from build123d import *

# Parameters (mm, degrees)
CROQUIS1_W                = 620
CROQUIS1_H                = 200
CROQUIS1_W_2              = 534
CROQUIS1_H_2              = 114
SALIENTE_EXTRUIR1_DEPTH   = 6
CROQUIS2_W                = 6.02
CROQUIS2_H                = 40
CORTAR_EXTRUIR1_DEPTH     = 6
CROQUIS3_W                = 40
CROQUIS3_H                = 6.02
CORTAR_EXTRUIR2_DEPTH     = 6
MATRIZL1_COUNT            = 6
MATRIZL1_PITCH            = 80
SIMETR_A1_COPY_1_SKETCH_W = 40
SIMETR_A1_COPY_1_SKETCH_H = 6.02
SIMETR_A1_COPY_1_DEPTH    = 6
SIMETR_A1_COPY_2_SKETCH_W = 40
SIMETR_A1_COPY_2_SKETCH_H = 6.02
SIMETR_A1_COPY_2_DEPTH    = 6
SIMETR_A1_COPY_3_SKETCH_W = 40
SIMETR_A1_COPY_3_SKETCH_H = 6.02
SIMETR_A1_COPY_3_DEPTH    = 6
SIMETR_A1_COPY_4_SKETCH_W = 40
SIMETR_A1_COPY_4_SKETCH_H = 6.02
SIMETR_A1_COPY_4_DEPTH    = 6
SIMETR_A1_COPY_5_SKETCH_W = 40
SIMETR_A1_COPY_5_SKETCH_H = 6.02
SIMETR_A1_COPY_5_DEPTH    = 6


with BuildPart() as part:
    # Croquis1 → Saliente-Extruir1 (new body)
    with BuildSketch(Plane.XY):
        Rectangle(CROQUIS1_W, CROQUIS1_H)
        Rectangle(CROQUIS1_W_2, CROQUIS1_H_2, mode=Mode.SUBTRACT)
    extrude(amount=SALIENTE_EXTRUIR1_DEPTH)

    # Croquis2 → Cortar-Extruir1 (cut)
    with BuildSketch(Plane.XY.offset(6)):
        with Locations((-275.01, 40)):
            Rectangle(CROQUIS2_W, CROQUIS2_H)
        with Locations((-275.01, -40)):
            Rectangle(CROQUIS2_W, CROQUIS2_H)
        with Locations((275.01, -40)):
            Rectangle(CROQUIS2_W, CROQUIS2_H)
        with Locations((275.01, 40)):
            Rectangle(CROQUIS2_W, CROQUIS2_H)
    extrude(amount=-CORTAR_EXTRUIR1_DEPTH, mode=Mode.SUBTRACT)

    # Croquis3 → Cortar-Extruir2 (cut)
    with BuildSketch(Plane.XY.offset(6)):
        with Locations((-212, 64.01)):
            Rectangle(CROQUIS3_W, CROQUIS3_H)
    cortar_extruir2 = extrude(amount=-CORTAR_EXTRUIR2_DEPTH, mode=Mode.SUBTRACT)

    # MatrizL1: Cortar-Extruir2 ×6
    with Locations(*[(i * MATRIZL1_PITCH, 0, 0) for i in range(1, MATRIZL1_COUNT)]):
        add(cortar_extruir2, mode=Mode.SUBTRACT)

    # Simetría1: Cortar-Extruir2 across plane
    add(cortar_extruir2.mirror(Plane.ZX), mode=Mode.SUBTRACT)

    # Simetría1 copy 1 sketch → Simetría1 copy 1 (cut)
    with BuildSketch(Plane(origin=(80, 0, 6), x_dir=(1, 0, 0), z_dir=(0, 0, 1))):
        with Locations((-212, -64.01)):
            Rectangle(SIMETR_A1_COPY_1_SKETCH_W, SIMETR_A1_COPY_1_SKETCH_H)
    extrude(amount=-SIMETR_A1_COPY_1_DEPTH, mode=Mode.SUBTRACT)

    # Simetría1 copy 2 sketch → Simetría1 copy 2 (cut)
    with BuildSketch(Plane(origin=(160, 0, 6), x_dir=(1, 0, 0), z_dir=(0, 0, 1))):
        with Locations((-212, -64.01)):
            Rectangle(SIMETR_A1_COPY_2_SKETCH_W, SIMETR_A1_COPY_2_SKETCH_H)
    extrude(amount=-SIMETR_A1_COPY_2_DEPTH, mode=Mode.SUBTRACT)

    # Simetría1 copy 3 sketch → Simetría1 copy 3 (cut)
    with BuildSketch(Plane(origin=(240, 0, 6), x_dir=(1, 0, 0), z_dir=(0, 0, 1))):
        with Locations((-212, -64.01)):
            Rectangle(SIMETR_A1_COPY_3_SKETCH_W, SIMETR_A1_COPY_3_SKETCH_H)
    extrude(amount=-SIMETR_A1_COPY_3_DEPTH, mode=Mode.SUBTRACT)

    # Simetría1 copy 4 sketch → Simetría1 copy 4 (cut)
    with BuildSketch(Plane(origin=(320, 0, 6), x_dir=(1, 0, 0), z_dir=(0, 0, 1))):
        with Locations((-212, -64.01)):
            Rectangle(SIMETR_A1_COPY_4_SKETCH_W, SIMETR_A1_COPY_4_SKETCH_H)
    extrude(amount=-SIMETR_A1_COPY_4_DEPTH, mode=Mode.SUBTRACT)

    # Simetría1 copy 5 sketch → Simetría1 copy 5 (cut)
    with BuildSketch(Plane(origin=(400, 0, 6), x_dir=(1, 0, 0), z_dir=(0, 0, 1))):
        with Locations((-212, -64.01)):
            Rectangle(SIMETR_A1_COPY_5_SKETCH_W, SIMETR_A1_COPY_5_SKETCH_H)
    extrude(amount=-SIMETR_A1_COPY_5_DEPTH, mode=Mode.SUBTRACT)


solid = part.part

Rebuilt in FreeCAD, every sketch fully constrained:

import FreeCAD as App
import Part
import Sketcher
Q = App.Units.Quantity

doc = App.newDocument("Part")
params = doc.addObject("Spreadsheet::Sheet", "Params")
for row, (alias, value) in enumerate([
    ("sketch1_width", "620 mm"),
    ("sketch1_width2", "534 mm"),
    ("sketch1_height", "200 mm"),
    ("sketch1_height2", "114 mm"),
    ("pad1_length", "6 mm"),
    ("sketch2_height", "40 mm"),
    ("sketch2_width", "6.02 mm"),
    ("pocket1_length", "6 mm"),
    ("sketch3_width", "40 mm"),
    ("sketch3_height", "6.02 mm"),
    ("pocket2_length", "6 mm"),
    ("linearpattern_pitch", "80 mm"),
    ("sketch4_width", "40 mm"),
    ("sketch4_height", "6.02 mm"),
    ("pocket3_length", "6 mm"),
    ("sketch5_width", "40 mm"),
    ("sketch5_height", "6.02 mm"),
    ("pocket4_length", "6 mm"),
    ("sketch6_width", "40 mm"),
    ("sketch6_height", "6.02 mm"),
    ("pocket5_length", "6 mm"),
    ("sketch7_width", "40 mm"),
    ("sketch7_height", "6.02 mm"),
    ("pocket6_length", "6 mm"),
    ("sketch8_width", "40 mm"),
    ("sketch8_height", "6.02 mm"),
    ("pocket7_length", "6 mm"),
], start=1):
    params.set(f"A{row}", alias)
    params.set(f"B{row}", "=" + value)
    params.setAlias(f"B{row}", alias)

body = doc.addObject("PartDesign::Body", "Body")

# Sketch on XY plane
sketch1 = body.newObject("Sketcher::SketchObject", "Sketch")
sketch1.AttachmentSupport = (doc.getObject("XY_Plane"), [""])
sketch1.MapMode = "FlatFace"
sketch1.addGeometry([
    Part.LineSegment(App.Vector(-310, 100, 0), App.Vector(-310, -100, 0)),  # 0
    Part.LineSegment(App.Vector(-310, -100, 0), App.Vector(310, -100, 0)),  # 1
    Part.LineSegment(App.Vector(310, -100, 0), App.Vector(310, 100, 0)),  # 2
    Part.LineSegment(App.Vector(310, 100, 0), App.Vector(-310, 100, 0)),  # 3
    Part.LineSegment(App.Vector(267, -57, 0), App.Vector(-267, -57, 0)),  # 4
    Part.LineSegment(App.Vector(-267, -57, 0), App.Vector(-267, 57, 0)),  # 5
    Part.LineSegment(App.Vector(-267, 57, 0), App.Vector(267, 57, 0)),  # 6
    Part.LineSegment(App.Vector(267, 57, 0), App.Vector(267, -57, 0)),  # 7
], False)
sketch1.addConstraint([
    Sketcher.Constraint("Coincident", 0, 2, 1, 1),
    Sketcher.Constraint("Coincident", 1, 2, 2, 1),
    Sketcher.Constraint("Coincident", 2, 2, 3, 1),
    Sketcher.Constraint("Coincident", 3, 2, 0, 1),
    Sketcher.Constraint("Coincident", 4, 2, 5, 1),
    Sketcher.Constraint("Coincident", 5, 2, 6, 1),
    Sketcher.Constraint("Coincident", 6, 2, 7, 1),
    Sketcher.Constraint("Coincident", 7, 2, 4, 1),
    Sketcher.Constraint("Vertical", 0),
    Sketcher.Constraint("Horizontal", 1),
    Sketcher.Constraint("Vertical", 2),
    Sketcher.Constraint("Horizontal", 3),
    Sketcher.Constraint("Horizontal", 4),
    Sketcher.Constraint("Vertical", 5),
    Sketcher.Constraint("Horizontal", 6),
    Sketcher.Constraint("Vertical", 7),
    Sketcher.Constraint("Symmetric", 0, 2, 2, 2, -1, 1),
    Sketcher.Constraint("Symmetric", 4, 2, 6, 2, -1, 1),
    Sketcher.Constraint("DistanceX", 1, 1, 1, 2, Q("620 mm")),
    Sketcher.Constraint("DistanceX", 4, 2, 4, 1, Q("534 mm")),
    Sketcher.Constraint("DistanceY", 0, 2, 0, 1, Q("200 mm")),
    Sketcher.Constraint("DistanceY", 5, 1, 5, 2, Q("114 mm")),
])
sketch1.setExpression("Constraints[18]", "Params.sketch1_width")
sketch1.setExpression("Constraints[19]", "Params.sketch1_width2")
sketch1.setExpression("Constraints[20]", "Params.sketch1_height")
sketch1.setExpression("Constraints[21]", "Params.sketch1_height2")
pad1 = body.newObject("PartDesign::Pad", "Pad")
pad1.Profile = sketch1
pad1.setExpression("Length", "Params.pad1_length")

# Sketch on XY plane
sketch2 = body.newObject("Sketcher::SketchObject", "Sketch001")
sketch2.AttachmentSupport = (doc.getObject("XY_Plane"), [""])
sketch2.MapMode = "FlatFace"
sketch2.AttachmentOffset = App.Placement(App.Vector(0, 0, 6), App.Rotation())
sketch2.addGeometry([
    Part.LineSegment(App.Vector(-278, 60, 0), App.Vector(-278, 20, 0)),  # 0
    Part.LineSegment(App.Vector(-278, 20, 0), App.Vector(-272, 20, 0)),  # 1
    Part.LineSegment(App.Vector(-272, 20, 0), App.Vector(-272, 60, 0)),  # 2
    Part.LineSegment(App.Vector(-272, 60, 0), App.Vector(-278, 60, 0)),  # 3
    Part.LineSegment(App.Vector(-278, -20, 0), App.Vector(-278, -60, 0)),  # 4
    Part.LineSegment(App.Vector(-278, -60, 0), App.Vector(-272, -60, 0)),  # 5
    Part.LineSegment(App.Vector(-272, -60, 0), App.Vector(-272, -20, 0)),  # 6
    Part.LineSegment(App.Vector(-272, -20, 0), App.Vector(-278, -20, 0)),  # 7
    Part.LineSegment(App.Vector(272, -20, 0), App.Vector(272, -60, 0)),  # 8
    Part.LineSegment(App.Vector(272, -60, 0), App.Vector(278, -60, 0)),  # 9
    Part.LineSegment(App.Vector(278, -60, 0), App.Vector(278, -20, 0)),  # 10
    Part.LineSegment(App.Vector(278, -20, 0), App.Vector(272, -20, 0)),  # 11
    Part.LineSegment(App.Vector(272, 60, 0), App.Vector(272, 20, 0)),  # 12
    Part.LineSegment(App.Vector(272, 20, 0), App.Vector(278, 20, 0)),  # 13
    Part.LineSegment(App.Vector(278, 20, 0), App.Vector(278, 60, 0)),  # 14
    Part.LineSegment(App.Vector(278, 60, 0), App.Vector(272, 60, 0)),  # 15
], False)
sketch2.addConstraint([
    Sketcher.Constraint("Coincident", 0, 2, 1, 1),
    Sketcher.Constraint("Coincident", 1, 2, 2, 1),
    Sketcher.Constraint("Coincident", 2, 2, 3, 1),
    Sketcher.Constraint("Coincident", 3, 2, 0, 1),
    Sketcher.Constraint("Coincident", 4, 2, 5, 1),
    Sketcher.Constraint("Coincident", 5, 2, 6, 1),
    Sketcher.Constraint("Coincident", 6, 2, 7, 1),
    Sketcher.Constraint("Coincident", 7, 2, 4, 1),
    Sketcher.Constraint("Coincident", 8, 2, 9, 1),
    Sketcher.Constraint("Coincident", 9, 2, 10, 1),
    Sketcher.Constraint("Coincident", 10, 2, 11, 1),
    Sketcher.Constraint("Coincident", 11, 2, 8, 1),
    Sketcher.Constraint("Coincident", 12, 2, 13, 1),
    Sketcher.Constraint("Coincident", 13, 2, 14, 1),
    Sketcher.Constraint("Coincident", 14, 2, 15, 1),
    Sketcher.Constraint("Coincident", 15, 2, 12, 1),
    Sketcher.Constraint("Vertical", 0),
    Sketcher.Constraint("Horizontal", 1),
    Sketcher.Constraint("Vertical", 2),
    Sketcher.Constraint("Horizontal", 3),
    Sketcher.Constraint("Vertical", 4),
    Sketcher.Constraint("Horizontal", 5),
    Sketcher.Constraint("Vertical", 6),
    Sketcher.Constraint("Horizontal", 7),
    Sketcher.Constraint("Vertical", 8),
    Sketcher.Constraint("Horizontal", 9),
    Sketcher.Constraint("Vertical", 10),
    Sketcher.Constraint("Horizontal", 11),
    Sketcher.Constraint("Vertical", 12),
    Sketcher.Constraint("Horizontal", 13),
    Sketcher.Constraint("Vertical", 14),
    Sketcher.Constraint("Horizontal", 15),
    Sketcher.Constraint("Symmetric", 2, 2, 8, 2, -1, 1),
    Sketcher.Constraint("Symmetric", 0, 2, 10, 2, -1, 1),
    Sketcher.Constraint("Symmetric", 6, 2, 12, 2, -1, 1),
    Sketcher.Constraint("Symmetric", 4, 2, 14, 2, -1, 1),
    Sketcher.Constraint("Symmetric", 5, 2, 8, 2, -2),
    Sketcher.Constraint("Symmetric", 7, 2, 10, 2, -2),
    Sketcher.Constraint("DistanceY", 0, 2, 0, 1, Q("40 mm")),
    Sketcher.Constraint("DistanceY", -1, 1, 0, 2, Q("20 mm")),
    Sketcher.Constraint("DistanceX", 1, 2, -1, 1, Q("272 mm")),
    Sketcher.Constraint("DistanceX", 1, 1, 1, 2, Q("6.02 mm")),
])
sketch2.setExpression("Constraints[38]", "Params.sketch2_height")
sketch2.setExpression("Constraints[41]", "Params.sketch2_width")
pocket1 = body.newObject("PartDesign::Pocket", "Pocket")
pocket1.Profile = sketch2
pocket1.setExpression("Length", "Params.pocket1_length")

# Sketch on XY plane
sketch3 = body.newObject("Sketcher::SketchObject", "Sketch002")
sketch3.AttachmentSupport = (doc.getObject("XY_Plane"), [""])
sketch3.MapMode = "FlatFace"
sketch3.AttachmentOffset = App.Placement(App.Vector(0, 0, 6), App.Rotation())
sketch3.addGeometry([
    Part.LineSegment(App.Vector(-232, 67, 0), App.Vector(-232, 61, 0)),
    Part.LineSegment(App.Vector(-232, 61, 0), App.Vector(-192, 61, 0)),
    Part.LineSegment(App.Vector(-192, 61, 0), App.Vector(-192, 67, 0)),
    Part.LineSegment(App.Vector(-192, 67, 0), App.Vector(-232, 67, 0)),
], False)
sketch3.addConstraint([
    Sketcher.Constraint("Coincident", 0, 2, 1, 1),
    Sketcher.Constraint("Coincident", 1, 2, 2, 1),
    Sketcher.Constraint("Coincident", 2, 2, 3, 1),
    Sketcher.Constraint("Coincident", 3, 2, 0, 1),
    Sketcher.Constraint("Vertical", 0),
    Sketcher.Constraint("Horizontal", 1),
    Sketcher.Constraint("Vertical", 2),
    Sketcher.Constraint("Horizontal", 3),
    Sketcher.Constraint("DistanceX", 1, 1, 1, 2, Q("40 mm")),
    Sketcher.Constraint("DistanceX", 0, 2, -1, 1, Q("232 mm")),
    Sketcher.Constraint("DistanceY", -1, 1, 0, 2, Q("61 mm")),
    Sketcher.Constraint("DistanceY", 0, 2, 0, 1, Q("6.02 mm")),
])
sketch3.setExpression("Constraints[8]", "Params.sketch3_width")
sketch3.setExpression("Constraints[11]", "Params.sketch3_height")
pocket2 = body.newObject("PartDesign::Pocket", "Pocket001")
pocket2.Profile = sketch3
pocket2.setExpression("Length", "Params.pocket2_length")
doc.recompute()

linearpattern = body.newObject("PartDesign::LinearPattern", "LinearPattern")
linearpattern.Originals = [pocket2]
linearpattern.Direction = (doc.getObject("X_Axis"), [""])
linearpattern.Mode = "offset"
linearpattern.setExpression("Offset", "Params.linearpattern_pitch")
linearpattern.Occurrences = 6
body.Tip = linearpattern
doc.recompute()

mirrored = body.newObject("PartDesign::Mirrored", "Mirrored")
mirrored.Originals = [pocket2]
mirrored.MirrorPlane = (doc.getObject("XZ_Plane"), [""])
body.Tip = mirrored

# Sketch on XY plane
sketch4 = body.newObject("Sketcher::SketchObject", "Sketch003")
sketch4.AttachmentSupport = (doc.getObject("XY_Plane"), [""])
sketch4.MapMode = "FlatFace"
sketch4.AttachmentOffset = App.Placement(App.Vector(0, 0, 6), App.Rotation())
sketch4.addGeometry([
    Part.LineSegment(App.Vector(-152, -61, 0), App.Vector(-152, -67, 0)),
    Part.LineSegment(App.Vector(-152, -67, 0), App.Vector(-112, -67, 0)),
    Part.LineSegment(App.Vector(-112, -67, 0), App.Vector(-112, -61, 0)),
    Part.LineSegment(App.Vector(-112, -61, 0), App.Vector(-152, -61, 0)),
], False)
sketch4.addConstraint([
    Sketcher.Constraint("Coincident", 0, 2, 1, 1),
    Sketcher.Constraint("Coincident", 1, 2, 2, 1),
    Sketcher.Constraint("Coincident", 2, 2, 3, 1),
    Sketcher.Constraint("Coincident", 3, 2, 0, 1),
    Sketcher.Constraint("Vertical", 0),
    Sketcher.Constraint("Horizontal", 1),
    Sketcher.Constraint("Vertical", 2),
    Sketcher.Constraint("Horizontal", 3),
    Sketcher.Constraint("DistanceX", 1, 1, 1, 2, Q("40 mm")),
    Sketcher.Constraint("DistanceX", 0, 2, -1, 1, Q("152 mm")),
    Sketcher.Constraint("DistanceY", 2, 2, -1, 1, Q("61 mm")),
    Sketcher.Constraint("DistanceY", 0, 2, 0, 1, Q("6.02 mm")),
])
sketch4.setExpression("Constraints[8]", "Params.sketch4_width")
sketch4.setExpression("Constraints[11]", "Params.sketch4_height")
pocket3 = body.newObject("PartDesign::Pocket", "Pocket002")
pocket3.Profile = sketch4
pocket3.setExpression("Length", "Params.pocket3_length")

# Sketch on XY plane
sketch5 = body.newObject("Sketcher::SketchObject", "Sketch004")
sketch5.AttachmentSupport = (doc.getObject("XY_Plane"), [""])
sketch5.MapMode = "FlatFace"
sketch5.AttachmentOffset = App.Placement(App.Vector(0, 0, 6), App.Rotation())
sketch5.addGeometry([
    Part.LineSegment(App.Vector(-72, -61, 0), App.Vector(-72, -67, 0)),
    Part.LineSegment(App.Vector(-72, -67, 0), App.Vector(-32, -67, 0)),
    Part.LineSegment(App.Vector(-32, -67, 0), App.Vector(-32, -61, 0)),
    Part.LineSegment(App.Vector(-32, -61, 0), App.Vector(-72, -61, 0)),
], False)
sketch5.addConstraint([
    Sketcher.Constraint("Coincident", 0, 2, 1, 1),
    Sketcher.Constraint("Coincident", 1, 2, 2, 1),
    Sketcher.Constraint("Coincident", 2, 2, 3, 1),
    Sketcher.Constraint("Coincident", 3, 2, 0, 1),
    Sketcher.Constraint("Vertical", 0),
    Sketcher.Constraint("Horizontal", 1),
    Sketcher.Constraint("Vertical", 2),
    Sketcher.Constraint("Horizontal", 3),
    Sketcher.Constraint("DistanceX", 1, 1, 1, 2, Q("40 mm")),
    Sketcher.Constraint("DistanceX", 0, 2, -1, 1, Q("72 mm")),
    Sketcher.Constraint("DistanceY", 2, 2, -1, 1, Q("61 mm")),
    Sketcher.Constraint("DistanceY", 0, 2, 0, 1, Q("6.02 mm")),
])
sketch5.setExpression("Constraints[8]", "Params.sketch5_width")
sketch5.setExpression("Constraints[11]", "Params.sketch5_height")
pocket4 = body.newObject("PartDesign::Pocket", "Pocket003")
pocket4.Profile = sketch5
pocket4.setExpression("Length", "Params.pocket4_length")

# Sketch on XY plane
sketch6 = body.newObject("Sketcher::SketchObject", "Sketch005")
sketch6.AttachmentSupport = (doc.getObject("XY_Plane"), [""])
sketch6.MapMode = "FlatFace"
sketch6.AttachmentOffset = App.Placement(App.Vector(0, 0, 6), App.Rotation())
sketch6.addGeometry([
    Part.LineSegment(App.Vector(8, -61, 0), App.Vector(8, -67, 0)),
    Part.LineSegment(App.Vector(8, -67, 0), App.Vector(48, -67, 0)),
    Part.LineSegment(App.Vector(48, -67, 0), App.Vector(48, -61, 0)),
    Part.LineSegment(App.Vector(48, -61, 0), App.Vector(8, -61, 0)),
], False)
sketch6.addConstraint([
    Sketcher.Constraint("Coincident", 0, 2, 1, 1),
    Sketcher.Constraint("Coincident", 1, 2, 2, 1),
    Sketcher.Constraint("Coincident", 2, 2, 3, 1),
    Sketcher.Constraint("Coincident", 3, 2, 0, 1),
    Sketcher.Constraint("Vertical", 0),
    Sketcher.Constraint("Horizontal", 1),
    Sketcher.Constraint("Vertical", 2),
    Sketcher.Constraint("Horizontal", 3),
    Sketcher.Constraint("DistanceX", 1, 1, 1, 2, Q("40 mm")),
    Sketcher.Constraint("DistanceX", -1, 1, 0, 2, Q("8 mm")),
    Sketcher.Constraint("DistanceY", 2, 2, -1, 1, Q("61 mm")),
    Sketcher.Constraint("DistanceY", 0, 2, 0, 1, Q("6.02 mm")),
])
sketch6.setExpression("Constraints[8]", "Params.sketch6_width")
sketch6.setExpression("Constraints[11]", "Params.sketch6_height")
pocket5 = body.newObject("PartDesign::Pocket", "Pocket004")
pocket5.Profile = sketch6
pocket5.setExpression("Length", "Params.pocket5_length")

# Sketch on XY plane
sketch7 = body.newObject("Sketcher::SketchObject", "Sketch006")
sketch7.AttachmentSupport = (doc.getObject("XY_Plane"), [""])
sketch7.MapMode = "FlatFace"
sketch7.AttachmentOffset = App.Placement(App.Vector(0, 0, 6), App.Rotation())
sketch7.addGeometry([
    Part.LineSegment(App.Vector(88, -61, 0), App.Vector(88, -67, 0)),
    Part.LineSegment(App.Vector(88, -67, 0), App.Vector(128, -67, 0)),
    Part.LineSegment(App.Vector(128, -67, 0), App.Vector(128, -61, 0)),
    Part.LineSegment(App.Vector(128, -61, 0), App.Vector(88, -61, 0)),
], False)
sketch7.addConstraint([
    Sketcher.Constraint("Coincident", 0, 2, 1, 1),
    Sketcher.Constraint("Coincident", 1, 2, 2, 1),
    Sketcher.Constraint("Coincident", 2, 2, 3, 1),
    Sketcher.Constraint("Coincident", 3, 2, 0, 1),
    Sketcher.Constraint("Vertical", 0),
    Sketcher.Constraint("Horizontal", 1),
    Sketcher.Constraint("Vertical", 2),
    Sketcher.Constraint("Horizontal", 3),
    Sketcher.Constraint("DistanceX", 1, 1, 1, 2, Q("40 mm")),
    Sketcher.Constraint("DistanceX", -1, 1, 0, 2, Q("88 mm")),
    Sketcher.Constraint("DistanceY", 2, 2, -1, 1, Q("61 mm")),
    Sketcher.Constraint("DistanceY", 0, 2, 0, 1, Q("6.02 mm")),
])
sketch7.setExpression("Constraints[8]", "Params.sketch7_width")
sketch7.setExpression("Constraints[11]", "Params.sketch7_height")
pocket6 = body.newObject("PartDesign::Pocket", "Pocket005")
pocket6.Profile = sketch7
pocket6.setExpression("Length", "Params.pocket6_length")

# Sketch on XY plane
sketch8 = body.newObject("Sketcher::SketchObject", "Sketch007")
sketch8.AttachmentSupport = (doc.getObject("XY_Plane"), [""])
sketch8.MapMode = "FlatFace"
sketch8.AttachmentOffset = App.Placement(App.Vector(0, 0, 6), App.Rotation())
sketch8.addGeometry([
    Part.LineSegment(App.Vector(168, -61, 0), App.Vector(168, -67, 0)),
    Part.LineSegment(App.Vector(168, -67, 0), App.Vector(208, -67, 0)),
    Part.LineSegment(App.Vector(208, -67, 0), App.Vector(208, -61, 0)),
    Part.LineSegment(App.Vector(208, -61, 0), App.Vector(168, -61, 0)),
], False)
sketch8.addConstraint([
    Sketcher.Constraint("Coincident", 0, 2, 1, 1),
    Sketcher.Constraint("Coincident", 1, 2, 2, 1),
    Sketcher.Constraint("Coincident", 2, 2, 3, 1),
    Sketcher.Constraint("Coincident", 3, 2, 0, 1),
    Sketcher.Constraint("Vertical", 0),
    Sketcher.Constraint("Horizontal", 1),
    Sketcher.Constraint("Vertical", 2),
    Sketcher.Constraint("Horizontal", 3),
    Sketcher.Constraint("DistanceX", 1, 1, 1, 2, Q("40 mm")),
    Sketcher.Constraint("DistanceX", -1, 1, 0, 2, Q("168 mm")),
    Sketcher.Constraint("DistanceY", 2, 2, -1, 1, Q("61 mm")),
    Sketcher.Constraint("DistanceY", 0, 2, 0, 1, Q("6.02 mm")),
])
sketch8.setExpression("Constraints[8]", "Params.sketch8_width")
sketch8.setExpression("Constraints[11]", "Params.sketch8_height")
pocket7 = body.newObject("PartDesign::Pocket", "Pocket006")
pocket7.Profile = sketch8
pocket7.setExpression("Length", "Params.pocket7_length")

doc.recompute()
